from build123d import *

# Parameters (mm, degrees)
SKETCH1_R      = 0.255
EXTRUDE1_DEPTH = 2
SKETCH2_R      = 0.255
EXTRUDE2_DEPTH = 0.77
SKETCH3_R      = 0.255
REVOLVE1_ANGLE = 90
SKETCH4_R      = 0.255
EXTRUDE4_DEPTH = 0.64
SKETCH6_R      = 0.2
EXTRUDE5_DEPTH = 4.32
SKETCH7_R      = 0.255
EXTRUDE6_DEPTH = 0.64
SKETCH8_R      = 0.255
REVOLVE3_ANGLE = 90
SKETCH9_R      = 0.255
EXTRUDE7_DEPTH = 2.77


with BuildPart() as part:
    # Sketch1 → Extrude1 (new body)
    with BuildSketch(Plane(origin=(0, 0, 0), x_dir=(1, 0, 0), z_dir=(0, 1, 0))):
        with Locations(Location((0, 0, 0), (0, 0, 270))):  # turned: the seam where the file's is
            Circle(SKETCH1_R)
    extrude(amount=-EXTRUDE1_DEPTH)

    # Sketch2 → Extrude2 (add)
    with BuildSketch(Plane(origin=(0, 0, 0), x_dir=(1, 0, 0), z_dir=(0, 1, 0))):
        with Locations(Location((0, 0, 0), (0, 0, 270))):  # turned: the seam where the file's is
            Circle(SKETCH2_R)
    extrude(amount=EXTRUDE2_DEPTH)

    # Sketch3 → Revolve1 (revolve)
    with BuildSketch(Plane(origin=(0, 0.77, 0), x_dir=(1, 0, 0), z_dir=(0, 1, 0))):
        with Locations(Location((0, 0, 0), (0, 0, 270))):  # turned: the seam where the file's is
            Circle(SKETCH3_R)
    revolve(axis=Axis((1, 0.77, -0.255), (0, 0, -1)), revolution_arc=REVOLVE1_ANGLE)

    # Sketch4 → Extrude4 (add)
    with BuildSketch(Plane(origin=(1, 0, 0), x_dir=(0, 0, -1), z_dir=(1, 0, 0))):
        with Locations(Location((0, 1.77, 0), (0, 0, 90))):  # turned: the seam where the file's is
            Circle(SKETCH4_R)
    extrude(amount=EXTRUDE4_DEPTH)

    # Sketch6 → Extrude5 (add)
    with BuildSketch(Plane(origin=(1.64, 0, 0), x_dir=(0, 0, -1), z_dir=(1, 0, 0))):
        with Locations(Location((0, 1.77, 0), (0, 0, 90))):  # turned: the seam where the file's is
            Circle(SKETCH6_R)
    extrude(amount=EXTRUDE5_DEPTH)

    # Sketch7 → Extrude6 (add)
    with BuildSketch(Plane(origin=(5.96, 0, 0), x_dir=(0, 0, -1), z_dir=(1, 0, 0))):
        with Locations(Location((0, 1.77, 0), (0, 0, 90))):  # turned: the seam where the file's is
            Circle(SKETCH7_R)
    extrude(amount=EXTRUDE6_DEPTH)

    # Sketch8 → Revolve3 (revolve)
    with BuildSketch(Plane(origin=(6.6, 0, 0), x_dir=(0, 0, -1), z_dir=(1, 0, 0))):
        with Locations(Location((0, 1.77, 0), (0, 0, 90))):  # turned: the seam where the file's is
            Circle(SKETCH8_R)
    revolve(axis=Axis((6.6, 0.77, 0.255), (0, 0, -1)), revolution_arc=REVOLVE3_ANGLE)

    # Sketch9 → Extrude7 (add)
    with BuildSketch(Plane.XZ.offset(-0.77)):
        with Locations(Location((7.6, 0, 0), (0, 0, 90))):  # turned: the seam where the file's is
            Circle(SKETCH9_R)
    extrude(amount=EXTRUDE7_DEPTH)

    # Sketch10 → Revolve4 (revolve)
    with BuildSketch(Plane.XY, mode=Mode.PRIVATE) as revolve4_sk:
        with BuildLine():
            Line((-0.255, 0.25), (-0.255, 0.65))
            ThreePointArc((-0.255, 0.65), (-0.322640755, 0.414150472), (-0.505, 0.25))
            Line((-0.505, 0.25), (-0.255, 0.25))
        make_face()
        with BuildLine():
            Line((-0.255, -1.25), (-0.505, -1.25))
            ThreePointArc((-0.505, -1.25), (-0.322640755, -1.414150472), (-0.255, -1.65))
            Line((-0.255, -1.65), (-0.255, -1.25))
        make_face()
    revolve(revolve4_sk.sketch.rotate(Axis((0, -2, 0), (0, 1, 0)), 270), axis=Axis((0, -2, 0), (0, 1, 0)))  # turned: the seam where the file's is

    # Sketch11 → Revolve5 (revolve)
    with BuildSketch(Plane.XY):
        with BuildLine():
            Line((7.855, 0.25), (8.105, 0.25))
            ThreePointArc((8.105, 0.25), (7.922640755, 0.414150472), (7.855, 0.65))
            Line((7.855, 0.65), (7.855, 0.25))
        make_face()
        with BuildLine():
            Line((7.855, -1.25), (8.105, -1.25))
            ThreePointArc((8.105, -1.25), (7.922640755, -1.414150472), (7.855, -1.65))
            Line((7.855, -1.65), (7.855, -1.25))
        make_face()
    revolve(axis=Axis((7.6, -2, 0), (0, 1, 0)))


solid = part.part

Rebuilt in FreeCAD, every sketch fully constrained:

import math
import FreeCAD as App
import Part
import Sketcher

V = App.Vector

doc = App.newDocument("Part")
body = doc.addObject("PartDesign::Body", "Body")

# Sketch on XZ plane
sketch1 = body.newObject("Sketcher::SketchObject", "Sketch")
sketch1.AttachmentSupport = (doc.getObject("XZ_Plane"), [""])
sketch1.MapMode = "FlatFace"
sketch1.addGeometry(Part.Circle(V(0, 0, 0), V(0, 0, 1), 0.26), False)
sketch1.addConstraint([
    Sketcher.Constraint("Coincident", 0, 3, -1, 1),
    Sketcher.Constraint("Diameter", 0, 0.51),
])
pad1 = body.newObject("PartDesign::Pad", "Pad")
pad1.Profile = sketch1
pad1.Length = 2

# Sketch on XZ plane
sketch2 = body.newObject("Sketcher::SketchObject", "Sketch001")
sketch2.AttachmentSupport = (doc.getObject("XZ_Plane"), [""])
sketch2.MapMode = "FlatFace"
sketch2.addGeometry(Part.Circle(V(0, 0, 0), V(0, 0, 1), 0.26), False)
sketch2.addConstraint([
    Sketcher.Constraint("Coincident", 0, 3, -1, 1),
    Sketcher.Constraint("Diameter", 0, 0.51),
])
pad2 = body.newObject("PartDesign::Pad", "Pad001")
pad2.Profile = sketch2
pad2.Length = 0.77
pad2.Reversed = True

# Sketch on XZ plane
sketch3 = body.newObject("Sketcher::SketchObject", "Sketch002")
sketch3.AttachmentSupport = (doc.getObject("XZ_Plane"), [""])
sketch3.MapMode = "FlatFace"
sketch3.AttachmentOffset = App.Placement(V(0, 0, -0.77), App.Rotation())
sketch3.addGeometry(Part.Circle(V(0, 0, 0), V(0, 0, 1), 0.26), False)
sketch3.addGeometry(Part.LineSegment(V(1, 0, 0), V(1, -10, 0)), True)  # axis
sketch3.addConstraint([
    Sketcher.Constraint("Vertical", 1),
    Sketcher.Constraint("Coincident", 0, 3, -1, 1),
    Sketcher.Constraint("PointOnObject", 1, 1, -1),
    Sketcher.Constraint("Diameter", 0, 0.51),
    Sketcher.Constraint("DistanceY", 1, 2, 1, 1, 10.0),
    Sketcher.Constraint("DistanceX", -1, 1, 1, 1, 1.0),
])
revolution = body.newObject("PartDesign::Revolution", "Revolution")
revolution.Profile = sketch3
revolution.ReferenceAxis = (sketch3, ["Axis0"])
revolution.Angle = 90

# Sketch on YZ plane
sketch4 = body.newObject("Sketcher::SketchObject", "Sketch003")
sketch4.AttachmentSupport = (doc.getObject("YZ_Plane"), [""])
sketch4.MapMode = "FlatFace"
sketch4.AttachmentOffset = App.Placement(V(0, 0, 1), App.Rotation())
sketch4.addGeometry(Part.Circle(V(1.77, 0, 0), V(0, 0, 1), 0.26), False)
sketch4.addConstraint([
    Sketcher.Constraint("PointOnObject", 0, 3, -1),
    Sketcher.Constraint("Diameter", 0, 0.51),
    Sketcher.Constraint("DistanceX", -1, 1, 0, 3, 1.77),
])
pad3 = body.newObject("PartDesign::Pad", "Pad002")
pad3.Profile = sketch4
pad3.Length = 0.64

# Sketch on YZ plane
sketch5 = body.newObject("Sketcher::SketchObject", "Sketch004")
sketch5.AttachmentSupport = (doc.getObject("YZ_Plane"), [""])
sketch5.MapMode = "FlatFace"
sketch5.AttachmentOffset = App.Placement(V(0, 0, 1.64), App.Rotation())
sketch5.addGeometry(Part.Circle(V(1.77, 0, 0), V(0, 0, 1), 0.2), False)
sketch5.addConstraint([
    Sketcher.Constraint("PointOnObject", 0, 3, -1),
    Sketcher.Constraint("Diameter", 0, 0.4),
    Sketcher.Constraint("DistanceX", -1, 1, 0, 3, 1.77),
])
pad4 = body.newObject("PartDesign::Pad", "Pad003")
pad4.Profile = sketch5
pad4.Length = 4.32

# Sketch on YZ plane
sketch6 = body.newObject("Sketcher::SketchObject", "Sketch005")
sketch6.AttachmentSupport = (doc.getObject("YZ_Plane"), [""])
sketch6.MapMode = "FlatFace"
sketch6.AttachmentOffset = App.Placement(V(0, 0, 5.96), App.Rotation())
sketch6.addGeometry(Part.Circle(V(1.77, 0, 0), V(0, 0, 1), 0.26), False)
sketch6.addConstraint([
    Sketcher.Constraint("PointOnObject", 0, 3, -1),
    Sketcher.Constraint("Diameter", 0, 0.51),
    Sketcher.Constraint("DistanceX", -1, 1, 0, 3, 1.77),
])
pad5 = body.newObject("PartDesign::Pad", "Pad004")
pad5.Profile = sketch6
pad5.Length = 0.64

# Sketch on YZ plane
sketch7 = body.newObject("Sketcher::SketchObject", "Sketch006")
sketch7.AttachmentSupport = (doc.getObject("YZ_Plane"), [""])
sketch7.MapMode = "FlatFace"
sketch7.AttachmentOffset = App.Placement(V(0, 0, 6.6), App.Rotation())
sketch7.addGeometry(Part.Circle(V(1.77, 0, 0), V(0, 0, 1), 0.26), False)
sketch7.addGeometry(Part.LineSegment(V(0.77, 0, 0), V(0.77, -10, 0)), True)  # axis
sketch7.addConstraint([
    Sketcher.Constraint("Vertical", 1),
    Sketcher.Constraint("PointOnObject", 0, 3, -1),
    Sketcher.Constraint("PointOnObject", 1, 1, -1),
    Sketcher.Constraint("Diameter", 0, 0.51),
    Sketcher.Constraint("DistanceY", 1, 2, 1, 1, 10.0),
    Sketcher.Constraint("DistanceX", 1, 1, 0, 3, 1.0),
    Sketcher.Constraint("DistanceX", -1, 1, 0, 3, 1.77),
])
revolution2 = body.newObject("PartDesign::Revolution", "Revolution001")
revolution2.Profile = sketch7
revolution2.ReferenceAxis = (sketch7, ["Axis0"])
revolution2.Angle = 90

# Sketch on XZ plane
sketch8 = body.newObject("Sketcher::SketchObject", "Sketch007")
sketch8.AttachmentSupport = (doc.getObject("XZ_Plane"), [""])
sketch8.MapMode = "FlatFace"
sketch8.AttachmentOffset = App.Placement(V(0, 0, -0.77), App.Rotation())
sketch8.addGeometry(Part.Circle(V(7.6, 0, 0), V(0, 0, 1), 0.26), False)
sketch8.addConstraint([
    Sketcher.Constraint("PointOnObject", 0, 3, -1),
    Sketcher.Constraint("Diameter", 0, 0.51),
    Sketcher.Constraint("DistanceX", -1, 1, 0, 3, 7.6),
])
pad6 = body.newObject("PartDesign::Pad", "Pad005")
pad6.Profile = sketch8
pad6.Length = 2.77

# Sketch on XY plane
sketch9 = body.newObject("Sketcher::SketchObject", "Sketch008")
sketch9.AttachmentSupport = (doc.getObject("XY_Plane"), [""])
sketch9.MapMode = "FlatFace"
sketch9.addGeometry([
    Part.LineSegment(V(-0.26, 0.25, 0), V(-0.26, 0.65, 0)),  # 0
    Part.ArcOfCircle(Part.Circle(V(-0.7, 0.65, 0), V(0, 0, 1), 0.45), math.radians(-64), math.radians(0)),  # 1
    Part.LineSegment(V(-0.51, 0.25, 0), V(-0.26, 0.25, 0)),  # 2
    Part.LineSegment(V(-0.26, -1.25, 0), V(-0.51, -1.25, 0)),  # 3
    Part.ArcOfCircle(Part.Circle(V(-0.7, -1.65, 0), V(0, 0, 1), 0.45), math.radians(0), math.radians(64)),  # 4
    Part.LineSegment(V(-0.26, -1.65, 0), V(-0.26, -1.25, 0)),  # 5
], False)
sketch9.addConstraint([
    Sketcher.Constraint("Tangent", 0, 2, 1, 2),
    Sketcher.Constraint("Coincident", 1, 1, 2, 1),
    Sketcher.Constraint("Coincident", 2, 2, 0, 1),
    Sketcher.Constraint("Coincident", 3, 2, 4, 2),
    Sketcher.Constraint("Tangent", 4, 1, 5, 1),
    Sketcher.Constraint("Coincident", 5, 2, 3, 1),
    Sketcher.Constraint("Vertical", 0),
    Sketcher.Constraint("Horizontal", 2),
    Sketcher.Constraint("Horizontal", 3),
    Sketcher.Constraint("Vertical", 5),
    Sketcher.Constraint("Equal", 1, 4),
    Sketcher.Constraint("Vertical", 1, 3, 4, 3),
    Sketcher.Constraint("Vertical", 1, 1, 3, 2),
    Sketcher.Constraint("DistanceY", 0, 1, 0, 2, 0.4),
    Sketcher.Constraint("Radius", 1, 0.445),
    Sketcher.Constraint("DistanceX", 1, 3, -1, 1, 0.7),
    Sketcher.Constraint("DistanceY", 4, 3, 1, 3, 2.3),
    Sketcher.Constraint("DistanceY", -1, 1, 1, 3, 0.65),
])
revolution3 = body.newObject("PartDesign::Revolution", "Revolution002")
revolution3.Profile = sketch9
revolution3.ReferenceAxis = (sketch9, ["V_Axis"])
revolution3.Angle = 360

# Sketch on XY plane
sketch10 = body.newObject("Sketcher::SketchObject", "Sketch009")
sketch10.AttachmentSupport = (doc.getObject("XY_Plane"), [""])
sketch10.MapMode = "FlatFace"
sketch10.addGeometry([
    Part.LineSegment(V(7.86, 0.25, 0), V(8.11, 0.25, 0)),  # 0
    Part.ArcOfCircle(Part.Circle(V(8.3, 0.65, 0), V(0, 0, 1), 0.45), math.radians(-180), math.radians(-116)),  # 1
    Part.LineSegment(V(7.86, 0.65, 0), V(7.86, 0.25, 0)),  # 2
    Part.LineSegment(V(8.11, -1.25, 0), V(7.86, -1.25, 0)),  # 3
    Part.LineSegment(V(7.86, -1.25, 0), V(7.86, -1.65, 0)),  # 4
    Part.ArcOfCircle(Part.Circle(V(8.3, -1.65, 0), V(0, 0, 1), 0.45), math.radians(116), math.radians(180)),  # 5
], False)
sketch10.addGeometry(Part.LineSegment(V(7.6, -1.65, 0), V(7.6, 0.65, 0)), True)  # axis
sketch10.addConstraint([
    Sketcher.Constraint("Coincident", 0, 2, 1, 2),
    Sketcher.Constraint("Tangent", 1, 1, 2, 1),
    Sketcher.Constraint("Coincident", 2, 2, 0, 1),
    Sketcher.Constraint("Coincident", 3, 2, 4, 1),
    Sketcher.Constraint("Tangent", 4, 2, 5, 2),
    Sketcher.Constraint("Coincident", 5, 1, 3, 1),
    Sketcher.Constraint("Horizontal", 0),
    Sketcher.Constraint("Vertical", 2),
    Sketcher.Constraint("Horizontal", 3),
    Sketcher.Constraint("Vertical", 4),
    Sketcher.Constraint("Vertical", 6),
    Sketcher.Constraint("Equal", 1, 5),
    Sketcher.Constraint("Horizontal", 4, 2, 6, 1),
    Sketcher.Constraint("Horizontal", 1, 1, 6, 2),
    Sketcher.Constraint("Vertical", 1, 3, 5, 3),
    Sketcher.Constraint("Vertical", 0, 2, 5, 1),
    Sketcher.Constraint("DistanceY", 2, 2, 2, 1, 0.4),
    Sketcher.Constraint("DistanceY", 6, 1, 6, 2, 2.3),
    Sketcher.Constraint("Radius", 1, 0.445),
    Sketcher.Constraint("DistanceX", -1, 1, 1, 3, 8.3),
    Sketcher.Constraint("DistanceX", -1, 1, 6, 1, 7.6),
    Sketcher.Constraint("DistanceY", -1, 1, 1, 3, 0.65),
])
revolution4 = body.newObject("PartDesign::Revolution", "Revolution003")
revolution4.Profile = sketch10
revolution4.ReferenceAxis = (sketch10, ["Axis0"])
revolution4.Angle = 360

doc.recompute()
